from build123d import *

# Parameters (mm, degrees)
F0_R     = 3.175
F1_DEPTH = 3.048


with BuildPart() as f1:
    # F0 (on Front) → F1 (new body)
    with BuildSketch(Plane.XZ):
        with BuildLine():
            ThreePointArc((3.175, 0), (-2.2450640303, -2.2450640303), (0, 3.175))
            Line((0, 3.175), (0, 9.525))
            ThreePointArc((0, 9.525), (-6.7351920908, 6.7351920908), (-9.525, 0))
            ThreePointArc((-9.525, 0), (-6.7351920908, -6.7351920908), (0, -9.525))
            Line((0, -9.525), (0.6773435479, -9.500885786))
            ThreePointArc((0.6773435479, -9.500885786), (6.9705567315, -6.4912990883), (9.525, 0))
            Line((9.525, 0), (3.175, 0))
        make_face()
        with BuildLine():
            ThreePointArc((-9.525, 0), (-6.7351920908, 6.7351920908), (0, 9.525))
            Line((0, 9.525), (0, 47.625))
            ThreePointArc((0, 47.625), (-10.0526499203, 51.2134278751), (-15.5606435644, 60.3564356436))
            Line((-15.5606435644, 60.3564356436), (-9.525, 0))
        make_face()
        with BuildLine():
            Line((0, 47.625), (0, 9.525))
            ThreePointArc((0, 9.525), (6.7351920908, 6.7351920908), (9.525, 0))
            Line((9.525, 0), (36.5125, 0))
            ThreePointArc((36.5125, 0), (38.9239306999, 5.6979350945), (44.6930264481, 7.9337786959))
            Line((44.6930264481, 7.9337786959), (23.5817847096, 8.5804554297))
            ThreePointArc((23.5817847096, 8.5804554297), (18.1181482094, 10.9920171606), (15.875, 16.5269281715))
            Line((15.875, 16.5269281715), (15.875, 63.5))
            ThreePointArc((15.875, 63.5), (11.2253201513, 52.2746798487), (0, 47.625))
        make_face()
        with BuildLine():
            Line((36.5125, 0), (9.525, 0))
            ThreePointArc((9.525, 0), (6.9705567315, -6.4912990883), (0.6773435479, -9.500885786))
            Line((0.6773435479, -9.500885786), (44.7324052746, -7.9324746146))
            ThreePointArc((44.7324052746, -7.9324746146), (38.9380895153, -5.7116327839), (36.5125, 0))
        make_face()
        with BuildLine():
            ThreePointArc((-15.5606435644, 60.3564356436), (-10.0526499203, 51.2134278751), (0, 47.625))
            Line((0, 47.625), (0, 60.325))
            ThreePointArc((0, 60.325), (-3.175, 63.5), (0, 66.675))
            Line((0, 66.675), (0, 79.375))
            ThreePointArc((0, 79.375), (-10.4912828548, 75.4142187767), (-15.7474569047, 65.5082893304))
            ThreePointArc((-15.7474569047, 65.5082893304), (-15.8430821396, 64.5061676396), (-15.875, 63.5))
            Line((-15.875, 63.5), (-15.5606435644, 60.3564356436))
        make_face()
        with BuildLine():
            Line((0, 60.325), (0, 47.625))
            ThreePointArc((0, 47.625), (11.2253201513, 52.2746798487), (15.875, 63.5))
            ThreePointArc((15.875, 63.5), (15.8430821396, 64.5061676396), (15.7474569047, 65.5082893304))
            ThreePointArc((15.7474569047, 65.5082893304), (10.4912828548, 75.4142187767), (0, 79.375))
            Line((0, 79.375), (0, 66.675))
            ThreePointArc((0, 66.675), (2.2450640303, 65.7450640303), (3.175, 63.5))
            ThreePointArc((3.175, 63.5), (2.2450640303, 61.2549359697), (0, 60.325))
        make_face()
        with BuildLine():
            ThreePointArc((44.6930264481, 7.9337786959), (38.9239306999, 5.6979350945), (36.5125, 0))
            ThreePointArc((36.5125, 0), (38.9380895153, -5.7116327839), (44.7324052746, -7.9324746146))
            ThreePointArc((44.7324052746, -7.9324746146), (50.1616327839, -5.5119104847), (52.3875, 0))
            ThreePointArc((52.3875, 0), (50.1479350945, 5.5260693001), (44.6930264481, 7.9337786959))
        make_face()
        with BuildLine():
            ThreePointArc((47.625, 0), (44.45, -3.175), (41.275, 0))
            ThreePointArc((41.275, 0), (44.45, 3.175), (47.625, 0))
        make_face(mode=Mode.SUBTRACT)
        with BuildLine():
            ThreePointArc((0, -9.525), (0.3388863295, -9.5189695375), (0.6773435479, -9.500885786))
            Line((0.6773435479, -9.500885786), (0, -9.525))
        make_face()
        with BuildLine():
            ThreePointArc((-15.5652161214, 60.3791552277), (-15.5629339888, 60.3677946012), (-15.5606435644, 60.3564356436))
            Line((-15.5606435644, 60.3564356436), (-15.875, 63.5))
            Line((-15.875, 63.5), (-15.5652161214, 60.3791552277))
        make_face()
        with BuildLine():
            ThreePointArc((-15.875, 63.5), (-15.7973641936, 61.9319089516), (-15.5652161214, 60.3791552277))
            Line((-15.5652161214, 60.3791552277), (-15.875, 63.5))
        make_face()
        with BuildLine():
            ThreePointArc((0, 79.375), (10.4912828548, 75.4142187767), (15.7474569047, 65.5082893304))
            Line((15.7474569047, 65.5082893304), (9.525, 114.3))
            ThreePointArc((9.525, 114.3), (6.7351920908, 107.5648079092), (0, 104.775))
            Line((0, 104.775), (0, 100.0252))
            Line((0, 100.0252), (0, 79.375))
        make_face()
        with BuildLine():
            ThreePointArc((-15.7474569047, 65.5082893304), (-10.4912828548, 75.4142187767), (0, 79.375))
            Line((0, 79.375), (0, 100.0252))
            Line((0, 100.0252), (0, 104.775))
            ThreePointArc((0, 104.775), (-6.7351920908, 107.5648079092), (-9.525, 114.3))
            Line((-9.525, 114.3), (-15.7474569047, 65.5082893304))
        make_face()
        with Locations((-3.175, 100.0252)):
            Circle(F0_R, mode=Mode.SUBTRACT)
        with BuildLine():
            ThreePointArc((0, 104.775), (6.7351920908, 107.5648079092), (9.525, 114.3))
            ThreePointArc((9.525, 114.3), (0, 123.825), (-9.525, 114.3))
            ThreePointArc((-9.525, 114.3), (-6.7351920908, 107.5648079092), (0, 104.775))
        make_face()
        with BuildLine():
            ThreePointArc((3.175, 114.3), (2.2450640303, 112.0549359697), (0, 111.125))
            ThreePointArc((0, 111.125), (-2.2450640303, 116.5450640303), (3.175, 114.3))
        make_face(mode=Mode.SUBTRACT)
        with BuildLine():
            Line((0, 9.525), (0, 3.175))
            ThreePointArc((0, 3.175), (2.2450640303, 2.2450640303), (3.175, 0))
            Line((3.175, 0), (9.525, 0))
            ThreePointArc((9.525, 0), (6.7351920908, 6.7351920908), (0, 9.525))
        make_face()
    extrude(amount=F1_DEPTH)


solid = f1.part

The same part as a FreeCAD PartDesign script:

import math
import FreeCAD as App
import Part
import Sketcher

V = App.Vector
Q = App.Units.Quantity

doc = App.newDocument("Part")
body = doc.addObject("PartDesign::Body", "Body")

sketch1 = body.newObject("Sketcher::SketchObject", "Sketch")
sketch1.AttachmentSupport = (doc.getObject("XZ_Plane"), [""])
sketch1.MapMode = "FlatFace"
sketch1.addGeometry(Part.ArcOfCircle(Part.Circle(V(0, 0, 0), V(0, 0, 1), 9.525), math.radians(180), math.radians(270)), False)
sketch1.addGeometry(Part.ArcOfCircle(Part.Circle(V(0, 0, 0), V(0, 0, 1), 9.525), math.radians(-90), math.radians(-85.92)), False)
sketch1.addGeometry(Part.LineSegment(V(0.677, -9.501, 0), V(44.732, -7.932, 0)), False)
sketch1.addGeometry(Part.ArcOfCircle(Part.Circle(V(44.45, 0, 0), V(0, 0, 1), 7.938), math.radians(-88), math.radians(88)), False)
sketch1.addGeometry(Part.LineSegment(V(44.693, 7.934, 0), V(23.582, 8.58, 0)), False)
sketch1.addGeometry(Part.ArcOfCircle(Part.Circle(V(23.825, 16.527, 0), V(0, 0, 1), 7.95), math.radians(-180), math.radians(-92)), False)
sketch1.addGeometry(Part.LineSegment(V(15.875, 16.527, 0), V(15.875, 63.5, 0)), False)
sketch1.addGeometry(Part.ArcOfCircle(Part.Circle(V(0, 63.5, 0), V(0, 0, 1), 15.875), math.radians(0), math.radians(7.27)), False)
sketch1.addGeometry(Part.LineSegment(V(15.747, 65.508, 0), V(9.525, 114.3, 0)), False)
sketch1.addGeometry(Part.ArcOfCircle(Part.Circle(V(0, 114.3, 0), V(0, 0, 1), 9.525), math.radians(0), math.radians(180)), False)
sketch1.addGeometry(Part.LineSegment(V(-9.525, 114.3, 0), V(-15.747, 65.508, 0)), False)
sketch1.addGeometry(Part.ArcOfCircle(Part.Circle(V(0, 63.5, 0), V(0, 0, 1), 15.875), math.radians(172.73), math.radians(180)), False)
sketch1.addGeometry(Part.ArcOfCircle(Part.Circle(V(0, 63.5, 0), V(0, 0, 1), 15.875), math.radians(180), math.radians(191.34)), False)
sketch1.addGeometry(Part.ArcOfCircle(Part.Circle(V(0, 63.5, 0), V(0, 0, 1), 15.875), math.radians(-168.66), math.radians(-168.58)), False)
sketch1.addGeometry(Part.LineSegment(V(-15.561, 60.356, 0), V(-9.525, 0, 0)), False)
sketch1.addGeometry(Part.ArcOfCircle(Part.Circle(V(0, 0, 0), V(0, 0, 1), 3.175), math.radians(90), math.radians(360)), False)
sketch1.addGeometry(Part.ArcOfCircle(Part.Circle(V(0, 0, 0), V(0, 0, 1), 3.175), math.radians(0), math.radians(90)), False)
sketch1.addGeometry(Part.Circle(V(44.45, 0, 0), V(0, 0, 1), 3.175), False)
sketch1.addGeometry(Part.ArcOfCircle(Part.Circle(V(0, 63.5, 0), V(0, 0, 1), 3.175), math.radians(90), math.radians(270)), False)
sketch1.addGeometry(Part.ArcOfCircle(Part.Circle(V(0, 63.5, 0), V(0, 0, 1), 3.175), math.radians(0), math.radians(90)), False)
sketch1.addGeometry(Part.ArcOfCircle(Part.Circle(V(0, 63.5, 0), V(0, 0, 1), 3.175), math.radians(-90), math.radians(0)), False)
sketch1.addGeometry(Part.Circle(V(-3.175, 100.025, 0), V(0, 0, 1), 3.175), False)
sketch1.addGeometry(Part.ArcOfCircle(Part.Circle(V(0, 114.3, 0), V(0, 0, 1), 3.175), math.radians(0), math.radians(270)), False)
sketch1.addGeometry(Part.ArcOfCircle(Part.Circle(V(0, 114.3, 0), V(0, 0, 1), 3.175), math.radians(-90), math.radians(0)), False)
sketch1.addConstraint(Sketcher.Constraint("Tangent", 0, 2, 1, 1))
sketch1.addConstraint(Sketcher.Constraint("Coincident", 1, 2, 2, 1))
sketch1.addConstraint(Sketcher.Constraint("Tangent", 2, 2, 3, 1))
sketch1.addConstraint(Sketcher.Constraint("Tangent", 3, 2, 4, 1))
sketch1.addConstraint(Sketcher.Constraint("Tangent", 4, 2, 5, 2))
sketch1.addConstraint(Sketcher.Constraint("Tangent", 5, 1, 6, 1))
sketch1.addConstraint(Sketcher.Constraint("Tangent", 6, 2, 7, 1))
sketch1.addConstraint(Sketcher.Constraint("Tangent", 7, 2, 8, 1))
sketch1.addConstraint(Sketcher.Constraint("Coincident", 8, 2, 9, 1))
sketch1.addConstraint(Sketcher.Constraint("Coincident", 9, 2, 10, 1))
sketch1.addConstraint(Sketcher.Constraint("Tangent", 10, 2, 11, 1))
sketch1.addConstraint(Sketcher.Constraint("Tangent", 11, 2, 12, 1))
sketch1.addConstraint(Sketcher.Constraint("Tangent", 12, 2, 13, 1))
sketch1.addConstraint(Sketcher.Constraint("Coincident", 13, 2, 14, 1))
sketch1.addConstraint(Sketcher.Constraint("Coincident", 14, 2, 0, 1))
sketch1.addConstraint(Sketcher.Constraint("Tangent", 15, 1, 16, 2))
sketch1.addConstraint(Sketcher.Constraint("Coincident", 16, 1, 15, 2))
sketch1.addConstraint(Sketcher.Constraint("Tangent", 18, 1, 19, 2))
sketch1.addConstraint(Sketcher.Constraint("Tangent", 19, 1, 20, 2))
sketch1.addConstraint(Sketcher.Constraint("Tangent", 20, 1, 18, 2))
sketch1.addConstraint(Sketcher.Constraint("Tangent", 22, 1, 23, 2))
sketch1.addConstraint(Sketcher.Constraint("Coincident", 23, 1, 22, 2))
sketch1.addConstraint(Sketcher.Constraint("Vertical", 6))
sketch1.addConstraint(Sketcher.Constraint("Coincident", 0, 3, -1, 1))
sketch1.addConstraint(Sketcher.Constraint("Coincident", 15, 3, -1, 1))
sketch1.addConstraint(Sketcher.Constraint("Coincident", 11, 3, 7, 3))
sketch1.addConstraint(Sketcher.Constraint("Coincident", 17, 3, 3, 3))
sketch1.addConstraint(Sketcher.Constraint("Coincident", 18, 3, 7, 3))
sketch1.addConstraint(Sketcher.Constraint("Coincident", 22, 3, 9, 3))
sketch1.addConstraint(Sketcher.Constraint("Equal", 0, 1))
sketch1.addConstraint(Sketcher.Constraint("Equal", 1, 9))
sketch1.addConstraint(Sketcher.Constraint("Equal", 7, 11))
sketch1.addConstraint(Sketcher.Constraint("Equal", 11, 12))
sketch1.addConstraint(Sketcher.Constraint("Equal", 16, 17))
sketch1.addConstraint(Sketcher.Constraint("Equal", 17, 18))
sketch1.addConstraint(Sketcher.Constraint("Equal", 20, 21))
sketch1.addConstraint(Sketcher.Constraint("Equal", 21, 22))
sketch1.addConstraint(Sketcher.Constraint("Symmetric", 8, 2, 9, 2, -2))
sketch1.addConstraint(Sketcher.Constraint("Symmetric", 6, 2, 11, 2, -2))
sketch1.addConstraint(Sketcher.Constraint("PointOnObject", 3, 3, -1))
sketch1.addConstraint(Sketcher.Constraint("PointOnObject", 0, 2, -2))
sketch1.addConstraint(Sketcher.Constraint("PointOnObject", 14, 2, -1))
sketch1.addConstraint(Sketcher.Constraint("PointOnObject", 15, 1, -2))
sketch1.addConstraint(Sketcher.Constraint("PointOnObject", 16, 1, -1))
sketch1.addConstraint(Sketcher.Constraint("PointOnObject", 18, 1, -2))
sketch1.addConstraint(Sketcher.Constraint("PointOnObject", 20, 1, -2))
sketch1.addConstraint(Sketcher.Constraint("PointOnObject", 23, 1, -2))
sketch1.addConstraint(Sketcher.Constraint("Horizontal", 23, 3, 8, 2))
sketch1.addConstraint(Sketcher.Constraint("Horizontal", 11, 2, 19, 1))
sketch1.addConstraint(Sketcher.Constraint("Horizontal", 9, 2, 22, 1))
sketch1.addConstraint(Sketcher.Constraint("Diameter", 17, Q("0.25 in")))
sketch1.addConstraint(Sketcher.Constraint("Radius", 0, Q("0.375 in")))
sketch1.addConstraint(Sketcher.Constraint("Radius", 3, Q("0.3125 in")))
sketch1.addConstraint(Sketcher.Constraint("Radius", 5, Q("0.313 in")))
sketch1.addConstraint(Sketcher.Constraint("Radius", 7, Q("0.625 in")))
sketch1.addConstraint(Sketcher.Constraint("DistanceY", 7, 3, 9, 3, Q("2 in")))
sketch1.addConstraint(Sketcher.Constraint("DistanceY", 13, 3, 9, 3, Q("2.0000001 in")))
sketch1.addConstraint(Sketcher.Constraint("DistanceY", -1, 1, 7, 3, Q("2.5 in")))
sketch1.addConstraint(Sketcher.Constraint("DistanceX", 21, 3, 8, 2, Q("0.5 in")))
sketch1.addConstraint(Sketcher.Constraint("DistanceX", -1, 1, 3, 3, Q("1.75 in")))
sketch1.addConstraint(Sketcher.Constraint("DistanceY", -1, 1, 21, 3, Q("3.938 in")))
sketch1.addConstraint(Sketcher.Constraint("DistanceY", 6, 1, 6, 2, Q("46.973072 mm")))
sketch1.addConstraint(Sketcher.Constraint("Distance", 2, Q("44.082972 mm")))
sketch1.addConstraint(Sketcher.Constraint("DistanceX", 10, 2, 12, 2, Q("0.182241 mm")))
sketch1.addConstraint(Sketcher.Constraint("DistanceY", 13, 2, 12, 2, Q("0.02272 mm")))
pad1 = body.newObject("PartDesign::Pad", "Pad")
pad1.Profile = sketch1
pad1.Length = Q("0.12 in")

doc.recompute()
